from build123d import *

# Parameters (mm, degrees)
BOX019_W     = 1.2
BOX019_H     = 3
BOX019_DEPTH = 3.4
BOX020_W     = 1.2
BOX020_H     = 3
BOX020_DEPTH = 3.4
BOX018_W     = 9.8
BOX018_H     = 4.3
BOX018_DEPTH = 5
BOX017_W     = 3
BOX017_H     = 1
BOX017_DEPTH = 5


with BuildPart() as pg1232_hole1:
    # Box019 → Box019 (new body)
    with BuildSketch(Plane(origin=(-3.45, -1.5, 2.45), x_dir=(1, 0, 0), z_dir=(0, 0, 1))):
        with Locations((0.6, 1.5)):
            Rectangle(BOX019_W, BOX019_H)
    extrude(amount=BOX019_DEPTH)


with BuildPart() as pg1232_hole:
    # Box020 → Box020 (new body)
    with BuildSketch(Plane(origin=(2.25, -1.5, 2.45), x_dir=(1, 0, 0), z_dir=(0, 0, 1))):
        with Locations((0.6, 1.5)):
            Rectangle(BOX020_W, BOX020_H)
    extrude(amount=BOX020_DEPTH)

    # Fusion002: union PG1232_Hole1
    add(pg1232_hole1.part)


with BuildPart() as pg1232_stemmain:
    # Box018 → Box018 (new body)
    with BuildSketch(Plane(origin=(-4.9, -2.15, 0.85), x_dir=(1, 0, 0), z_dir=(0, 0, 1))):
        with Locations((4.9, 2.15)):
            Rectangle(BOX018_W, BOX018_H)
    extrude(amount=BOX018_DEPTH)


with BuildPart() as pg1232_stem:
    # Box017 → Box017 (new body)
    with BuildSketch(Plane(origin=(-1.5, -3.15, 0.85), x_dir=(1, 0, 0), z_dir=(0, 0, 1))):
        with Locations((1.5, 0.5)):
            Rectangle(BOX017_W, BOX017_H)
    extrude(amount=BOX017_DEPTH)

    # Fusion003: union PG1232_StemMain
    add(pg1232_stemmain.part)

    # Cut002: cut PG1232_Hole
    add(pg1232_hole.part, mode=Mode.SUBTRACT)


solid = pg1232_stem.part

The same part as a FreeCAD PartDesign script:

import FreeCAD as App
import Part
import Sketcher

doc = App.newDocument("Part")
body = doc.addObject("PartDesign::Body", "Body")

# Sketch on XY plane
sketch1 = body.newObject("Sketcher::SketchObject", "Sketch")
sketch1.AttachmentSupport = (doc.getObject("XY_Plane"), [""])
sketch1.MapMode = "FlatFace"
sketch1.AttachmentOffset = App.Placement(App.Vector(0, 0, 2.45), App.Rotation())
sketch1.addGeometry([
    Part.LineSegment(App.Vector(-3.5, 1.5, 0), App.Vector(-3.5, -1.5, 0)),
    Part.LineSegment(App.Vector(-3.5, -1.5, 0), App.Vector(-2.2, -1.5, 0)),
    Part.LineSegment(App.Vector(-2.2, -1.5, 0), App.Vector(-2.2, 1.5, 0)),
    Part.LineSegment(App.Vector(-2.2, 1.5, 0), App.Vector(-3.5, 1.5, 0)),
], False)
sketch1.addConstraint([
    Sketcher.Constraint("Coincident", 0, 2, 1, 1),
    Sketcher.Constraint("Coincident", 1, 2, 2, 1),
    Sketcher.Constraint("Coincident", 2, 2, 3, 1),
    Sketcher.Constraint("Coincident", 3, 2, 0, 1),
    Sketcher.Constraint("Vertical", 0),
    Sketcher.Constraint("Horizontal", 1),
    Sketcher.Constraint("Vertical", 2),
    Sketcher.Constraint("Horizontal", 3),
    Sketcher.Constraint("DistanceY", 0, 2, 0, 1, 3.0),
    Sketcher.Constraint("DistanceX", 1, 1, 1, 2, 1.2),
    Sketcher.Constraint("DistanceY", 0, 2, -1, 1, 1.5),
    Sketcher.Constraint("DistanceX", 0, 2, -1, 1, 3.45),
])
pad1 = body.newObject("PartDesign::Pad", "Pad")
pad1.Profile = sketch1
pad1.Length = 3.4
body2 = doc.addObject("PartDesign::Body", "Body001")
body2.AllowCompound = True

# Sketch on XY plane
sketch2 = body2.newObject("Sketcher::SketchObject", "Sketch001")
sketch2.AttachmentSupport = (doc.getObject("XY_Plane001"), [""])
sketch2.MapMode = "FlatFace"
sketch2.AttachmentOffset = App.Placement(App.Vector(0, 0, 2.45), App.Rotation())
sketch2.addGeometry([
    Part.LineSegment(App.Vector(2.2, 1.5, 0), App.Vector(2.2, -1.5, 0)),
    Part.LineSegment(App.Vector(2.2, -1.5, 0), App.Vector(3.5, -1.5, 0)),
    Part.LineSegment(App.Vector(3.5, -1.5, 0), App.Vector(3.5, 1.5, 0)),
    Part.LineSegment(App.Vector(3.5, 1.5, 0), App.Vector(2.2, 1.5, 0)),
], False)
sketch2.addConstraint([
    Sketcher.Constraint("Coincident", 0, 2, 1, 1),
    Sketcher.Constraint("Coincident", 1, 2, 2, 1),
    Sketcher.Constraint("Coincident", 2, 2, 3, 1),
    Sketcher.Constraint("Coincident", 3, 2, 0, 1),
    Sketcher.Constraint("Vertical", 0),
    Sketcher.Constraint("Horizontal", 1),
    Sketcher.Constraint("Vertical", 2),
    Sketcher.Constraint("Horizontal", 3),
    Sketcher.Constraint("DistanceY", 0, 2, 0, 1, 3.0),
    Sketcher.Constraint("DistanceX", 1, 1, 1, 2, 1.2),
    Sketcher.Constraint("DistanceY", 0, 2, -1, 1, 1.5),
    Sketcher.Constraint("DistanceX", -1, 1, 0, 2, 2.25),
])
pad2 = body2.newObject("PartDesign::Pad", "Pad001")
pad2.Profile = sketch2
pad2.Length = 3.4
doc.recompute()

boolean = body2.newObject("PartDesign::Boolean", "Boolean")
boolean.Type = "Fuse"
boolean.addObjects([body])
body3 = doc.addObject("PartDesign::Body", "Body002")

# Sketch on XY plane
sketch3 = body3.newObject("Sketcher::SketchObject", "Sketch002")
sketch3.AttachmentSupport = (doc.getObject("XY_Plane002"), [""])
sketch3.MapMode = "FlatFace"
sketch3.AttachmentOffset = App.Placement(App.Vector(0, 0, 0.85), App.Rotation())
sketch3.addGeometry([
    Part.LineSegment(App.Vector(-4.9, 2.1, 0), App.Vector(-4.9, -2.1, 0)),
    Part.LineSegment(App.Vector(-4.9, -2.1, 0), App.Vector(4.9, -2.1, 0)),
    Part.LineSegment(App.Vector(4.9, -2.1, 0), App.Vector(4.9, 2.1, 0)),
    Part.LineSegment(App.Vector(4.9, 2.1, 0), App.Vector(-4.9, 2.1, 0)),
], False)
sketch3.addConstraint([
    Sketcher.Constraint("Coincident", 0, 2, 1, 1),
    Sketcher.Constraint("Coincident", 1, 2, 2, 1),
    Sketcher.Constraint("Coincident", 2, 2, 3, 1),
    Sketcher.Constraint("Coincident", 3, 2, 0, 1),
    Sketcher.Constraint("Vertical", 0),
    Sketcher.Constraint("Horizontal", 1),
    Sketcher.Constraint("Vertical", 2),
    Sketcher.Constraint("Horizontal", 3),
    Sketcher.Constraint("Symmetric", 0, 2, 2, 2, -1, 1),
    Sketcher.Constraint("DistanceX", 1, 1, 1, 2, 9.8),
    Sketcher.Constraint("DistanceY", 0, 2, 0, 1, 4.3),
])
pad3 = body3.newObject("PartDesign::Pad", "Pad002")
pad3.Profile = sketch3
pad3.Length = 5
body4 = doc.addObject("PartDesign::Body", "Body003")

# Sketch on XY plane
sketch4 = body4.newObject("Sketcher::SketchObject", "Sketch003")
sketch4.AttachmentSupport = (doc.getObject("XY_Plane003"), [""])
sketch4.MapMode = "FlatFace"
sketch4.AttachmentOffset = App.Placement(App.Vector(0, 0, 0.85), App.Rotation())
sketch4.addGeometry([
    Part.LineSegment(App.Vector(-1.5, -2.1, 0), App.Vector(-1.5, -3.1, 0)),
    Part.LineSegment(App.Vector(-1.5, -3.1, 0), App.Vector(1.5, -3.1, 0)),
    Part.LineSegment(App.Vector(1.5, -3.1, 0), App.Vector(1.5, -2.1, 0)),
    Part.LineSegment(App.Vector(1.5, -2.1, 0), App.Vector(-1.5, -2.1, 0)),
], False)
sketch4.addConstraint([
    Sketcher.Constraint("Coincident", 0, 2, 1, 1),
    Sketcher.Constraint("Coincident", 1, 2, 2, 1),
    Sketcher.Constraint("Coincident", 2, 2, 3, 1),
    Sketcher.Constraint("Coincident", 3, 2, 0, 1),
    Sketcher.Constraint("Vertical", 0),
    Sketcher.Constraint("Horizontal", 1),
    Sketcher.Constraint("Vertical", 2),
    Sketcher.Constraint("Horizontal", 3),
    Sketcher.Constraint("DistanceX", 1, 1, 1, 2, 3.0),
    Sketcher.Constraint("DistanceY", 0, 2, 0, 1, 1.0),
    Sketcher.Constraint("DistanceX", 0, 2, -1, 1, 1.5),
    Sketcher.Constraint("DistanceY", 0, 2, -1, 1, 3.15),
])
pad4 = body4.newObject("PartDesign::Pad", "Pad003")
pad4.Profile = sketch4
pad4.Length = 5
doc.recompute()

boolean2 = body4.newObject("PartDesign::Boolean", "Boolean001")
boolean2.Type = "Fuse"
boolean2.addObjects([body3])
doc.recompute()

boolean3 = body4.newObject("PartDesign::Boolean", "Boolean002")
boolean3.Type = "Cut"
boolean3.addObjects([body2])

doc.recompute()
